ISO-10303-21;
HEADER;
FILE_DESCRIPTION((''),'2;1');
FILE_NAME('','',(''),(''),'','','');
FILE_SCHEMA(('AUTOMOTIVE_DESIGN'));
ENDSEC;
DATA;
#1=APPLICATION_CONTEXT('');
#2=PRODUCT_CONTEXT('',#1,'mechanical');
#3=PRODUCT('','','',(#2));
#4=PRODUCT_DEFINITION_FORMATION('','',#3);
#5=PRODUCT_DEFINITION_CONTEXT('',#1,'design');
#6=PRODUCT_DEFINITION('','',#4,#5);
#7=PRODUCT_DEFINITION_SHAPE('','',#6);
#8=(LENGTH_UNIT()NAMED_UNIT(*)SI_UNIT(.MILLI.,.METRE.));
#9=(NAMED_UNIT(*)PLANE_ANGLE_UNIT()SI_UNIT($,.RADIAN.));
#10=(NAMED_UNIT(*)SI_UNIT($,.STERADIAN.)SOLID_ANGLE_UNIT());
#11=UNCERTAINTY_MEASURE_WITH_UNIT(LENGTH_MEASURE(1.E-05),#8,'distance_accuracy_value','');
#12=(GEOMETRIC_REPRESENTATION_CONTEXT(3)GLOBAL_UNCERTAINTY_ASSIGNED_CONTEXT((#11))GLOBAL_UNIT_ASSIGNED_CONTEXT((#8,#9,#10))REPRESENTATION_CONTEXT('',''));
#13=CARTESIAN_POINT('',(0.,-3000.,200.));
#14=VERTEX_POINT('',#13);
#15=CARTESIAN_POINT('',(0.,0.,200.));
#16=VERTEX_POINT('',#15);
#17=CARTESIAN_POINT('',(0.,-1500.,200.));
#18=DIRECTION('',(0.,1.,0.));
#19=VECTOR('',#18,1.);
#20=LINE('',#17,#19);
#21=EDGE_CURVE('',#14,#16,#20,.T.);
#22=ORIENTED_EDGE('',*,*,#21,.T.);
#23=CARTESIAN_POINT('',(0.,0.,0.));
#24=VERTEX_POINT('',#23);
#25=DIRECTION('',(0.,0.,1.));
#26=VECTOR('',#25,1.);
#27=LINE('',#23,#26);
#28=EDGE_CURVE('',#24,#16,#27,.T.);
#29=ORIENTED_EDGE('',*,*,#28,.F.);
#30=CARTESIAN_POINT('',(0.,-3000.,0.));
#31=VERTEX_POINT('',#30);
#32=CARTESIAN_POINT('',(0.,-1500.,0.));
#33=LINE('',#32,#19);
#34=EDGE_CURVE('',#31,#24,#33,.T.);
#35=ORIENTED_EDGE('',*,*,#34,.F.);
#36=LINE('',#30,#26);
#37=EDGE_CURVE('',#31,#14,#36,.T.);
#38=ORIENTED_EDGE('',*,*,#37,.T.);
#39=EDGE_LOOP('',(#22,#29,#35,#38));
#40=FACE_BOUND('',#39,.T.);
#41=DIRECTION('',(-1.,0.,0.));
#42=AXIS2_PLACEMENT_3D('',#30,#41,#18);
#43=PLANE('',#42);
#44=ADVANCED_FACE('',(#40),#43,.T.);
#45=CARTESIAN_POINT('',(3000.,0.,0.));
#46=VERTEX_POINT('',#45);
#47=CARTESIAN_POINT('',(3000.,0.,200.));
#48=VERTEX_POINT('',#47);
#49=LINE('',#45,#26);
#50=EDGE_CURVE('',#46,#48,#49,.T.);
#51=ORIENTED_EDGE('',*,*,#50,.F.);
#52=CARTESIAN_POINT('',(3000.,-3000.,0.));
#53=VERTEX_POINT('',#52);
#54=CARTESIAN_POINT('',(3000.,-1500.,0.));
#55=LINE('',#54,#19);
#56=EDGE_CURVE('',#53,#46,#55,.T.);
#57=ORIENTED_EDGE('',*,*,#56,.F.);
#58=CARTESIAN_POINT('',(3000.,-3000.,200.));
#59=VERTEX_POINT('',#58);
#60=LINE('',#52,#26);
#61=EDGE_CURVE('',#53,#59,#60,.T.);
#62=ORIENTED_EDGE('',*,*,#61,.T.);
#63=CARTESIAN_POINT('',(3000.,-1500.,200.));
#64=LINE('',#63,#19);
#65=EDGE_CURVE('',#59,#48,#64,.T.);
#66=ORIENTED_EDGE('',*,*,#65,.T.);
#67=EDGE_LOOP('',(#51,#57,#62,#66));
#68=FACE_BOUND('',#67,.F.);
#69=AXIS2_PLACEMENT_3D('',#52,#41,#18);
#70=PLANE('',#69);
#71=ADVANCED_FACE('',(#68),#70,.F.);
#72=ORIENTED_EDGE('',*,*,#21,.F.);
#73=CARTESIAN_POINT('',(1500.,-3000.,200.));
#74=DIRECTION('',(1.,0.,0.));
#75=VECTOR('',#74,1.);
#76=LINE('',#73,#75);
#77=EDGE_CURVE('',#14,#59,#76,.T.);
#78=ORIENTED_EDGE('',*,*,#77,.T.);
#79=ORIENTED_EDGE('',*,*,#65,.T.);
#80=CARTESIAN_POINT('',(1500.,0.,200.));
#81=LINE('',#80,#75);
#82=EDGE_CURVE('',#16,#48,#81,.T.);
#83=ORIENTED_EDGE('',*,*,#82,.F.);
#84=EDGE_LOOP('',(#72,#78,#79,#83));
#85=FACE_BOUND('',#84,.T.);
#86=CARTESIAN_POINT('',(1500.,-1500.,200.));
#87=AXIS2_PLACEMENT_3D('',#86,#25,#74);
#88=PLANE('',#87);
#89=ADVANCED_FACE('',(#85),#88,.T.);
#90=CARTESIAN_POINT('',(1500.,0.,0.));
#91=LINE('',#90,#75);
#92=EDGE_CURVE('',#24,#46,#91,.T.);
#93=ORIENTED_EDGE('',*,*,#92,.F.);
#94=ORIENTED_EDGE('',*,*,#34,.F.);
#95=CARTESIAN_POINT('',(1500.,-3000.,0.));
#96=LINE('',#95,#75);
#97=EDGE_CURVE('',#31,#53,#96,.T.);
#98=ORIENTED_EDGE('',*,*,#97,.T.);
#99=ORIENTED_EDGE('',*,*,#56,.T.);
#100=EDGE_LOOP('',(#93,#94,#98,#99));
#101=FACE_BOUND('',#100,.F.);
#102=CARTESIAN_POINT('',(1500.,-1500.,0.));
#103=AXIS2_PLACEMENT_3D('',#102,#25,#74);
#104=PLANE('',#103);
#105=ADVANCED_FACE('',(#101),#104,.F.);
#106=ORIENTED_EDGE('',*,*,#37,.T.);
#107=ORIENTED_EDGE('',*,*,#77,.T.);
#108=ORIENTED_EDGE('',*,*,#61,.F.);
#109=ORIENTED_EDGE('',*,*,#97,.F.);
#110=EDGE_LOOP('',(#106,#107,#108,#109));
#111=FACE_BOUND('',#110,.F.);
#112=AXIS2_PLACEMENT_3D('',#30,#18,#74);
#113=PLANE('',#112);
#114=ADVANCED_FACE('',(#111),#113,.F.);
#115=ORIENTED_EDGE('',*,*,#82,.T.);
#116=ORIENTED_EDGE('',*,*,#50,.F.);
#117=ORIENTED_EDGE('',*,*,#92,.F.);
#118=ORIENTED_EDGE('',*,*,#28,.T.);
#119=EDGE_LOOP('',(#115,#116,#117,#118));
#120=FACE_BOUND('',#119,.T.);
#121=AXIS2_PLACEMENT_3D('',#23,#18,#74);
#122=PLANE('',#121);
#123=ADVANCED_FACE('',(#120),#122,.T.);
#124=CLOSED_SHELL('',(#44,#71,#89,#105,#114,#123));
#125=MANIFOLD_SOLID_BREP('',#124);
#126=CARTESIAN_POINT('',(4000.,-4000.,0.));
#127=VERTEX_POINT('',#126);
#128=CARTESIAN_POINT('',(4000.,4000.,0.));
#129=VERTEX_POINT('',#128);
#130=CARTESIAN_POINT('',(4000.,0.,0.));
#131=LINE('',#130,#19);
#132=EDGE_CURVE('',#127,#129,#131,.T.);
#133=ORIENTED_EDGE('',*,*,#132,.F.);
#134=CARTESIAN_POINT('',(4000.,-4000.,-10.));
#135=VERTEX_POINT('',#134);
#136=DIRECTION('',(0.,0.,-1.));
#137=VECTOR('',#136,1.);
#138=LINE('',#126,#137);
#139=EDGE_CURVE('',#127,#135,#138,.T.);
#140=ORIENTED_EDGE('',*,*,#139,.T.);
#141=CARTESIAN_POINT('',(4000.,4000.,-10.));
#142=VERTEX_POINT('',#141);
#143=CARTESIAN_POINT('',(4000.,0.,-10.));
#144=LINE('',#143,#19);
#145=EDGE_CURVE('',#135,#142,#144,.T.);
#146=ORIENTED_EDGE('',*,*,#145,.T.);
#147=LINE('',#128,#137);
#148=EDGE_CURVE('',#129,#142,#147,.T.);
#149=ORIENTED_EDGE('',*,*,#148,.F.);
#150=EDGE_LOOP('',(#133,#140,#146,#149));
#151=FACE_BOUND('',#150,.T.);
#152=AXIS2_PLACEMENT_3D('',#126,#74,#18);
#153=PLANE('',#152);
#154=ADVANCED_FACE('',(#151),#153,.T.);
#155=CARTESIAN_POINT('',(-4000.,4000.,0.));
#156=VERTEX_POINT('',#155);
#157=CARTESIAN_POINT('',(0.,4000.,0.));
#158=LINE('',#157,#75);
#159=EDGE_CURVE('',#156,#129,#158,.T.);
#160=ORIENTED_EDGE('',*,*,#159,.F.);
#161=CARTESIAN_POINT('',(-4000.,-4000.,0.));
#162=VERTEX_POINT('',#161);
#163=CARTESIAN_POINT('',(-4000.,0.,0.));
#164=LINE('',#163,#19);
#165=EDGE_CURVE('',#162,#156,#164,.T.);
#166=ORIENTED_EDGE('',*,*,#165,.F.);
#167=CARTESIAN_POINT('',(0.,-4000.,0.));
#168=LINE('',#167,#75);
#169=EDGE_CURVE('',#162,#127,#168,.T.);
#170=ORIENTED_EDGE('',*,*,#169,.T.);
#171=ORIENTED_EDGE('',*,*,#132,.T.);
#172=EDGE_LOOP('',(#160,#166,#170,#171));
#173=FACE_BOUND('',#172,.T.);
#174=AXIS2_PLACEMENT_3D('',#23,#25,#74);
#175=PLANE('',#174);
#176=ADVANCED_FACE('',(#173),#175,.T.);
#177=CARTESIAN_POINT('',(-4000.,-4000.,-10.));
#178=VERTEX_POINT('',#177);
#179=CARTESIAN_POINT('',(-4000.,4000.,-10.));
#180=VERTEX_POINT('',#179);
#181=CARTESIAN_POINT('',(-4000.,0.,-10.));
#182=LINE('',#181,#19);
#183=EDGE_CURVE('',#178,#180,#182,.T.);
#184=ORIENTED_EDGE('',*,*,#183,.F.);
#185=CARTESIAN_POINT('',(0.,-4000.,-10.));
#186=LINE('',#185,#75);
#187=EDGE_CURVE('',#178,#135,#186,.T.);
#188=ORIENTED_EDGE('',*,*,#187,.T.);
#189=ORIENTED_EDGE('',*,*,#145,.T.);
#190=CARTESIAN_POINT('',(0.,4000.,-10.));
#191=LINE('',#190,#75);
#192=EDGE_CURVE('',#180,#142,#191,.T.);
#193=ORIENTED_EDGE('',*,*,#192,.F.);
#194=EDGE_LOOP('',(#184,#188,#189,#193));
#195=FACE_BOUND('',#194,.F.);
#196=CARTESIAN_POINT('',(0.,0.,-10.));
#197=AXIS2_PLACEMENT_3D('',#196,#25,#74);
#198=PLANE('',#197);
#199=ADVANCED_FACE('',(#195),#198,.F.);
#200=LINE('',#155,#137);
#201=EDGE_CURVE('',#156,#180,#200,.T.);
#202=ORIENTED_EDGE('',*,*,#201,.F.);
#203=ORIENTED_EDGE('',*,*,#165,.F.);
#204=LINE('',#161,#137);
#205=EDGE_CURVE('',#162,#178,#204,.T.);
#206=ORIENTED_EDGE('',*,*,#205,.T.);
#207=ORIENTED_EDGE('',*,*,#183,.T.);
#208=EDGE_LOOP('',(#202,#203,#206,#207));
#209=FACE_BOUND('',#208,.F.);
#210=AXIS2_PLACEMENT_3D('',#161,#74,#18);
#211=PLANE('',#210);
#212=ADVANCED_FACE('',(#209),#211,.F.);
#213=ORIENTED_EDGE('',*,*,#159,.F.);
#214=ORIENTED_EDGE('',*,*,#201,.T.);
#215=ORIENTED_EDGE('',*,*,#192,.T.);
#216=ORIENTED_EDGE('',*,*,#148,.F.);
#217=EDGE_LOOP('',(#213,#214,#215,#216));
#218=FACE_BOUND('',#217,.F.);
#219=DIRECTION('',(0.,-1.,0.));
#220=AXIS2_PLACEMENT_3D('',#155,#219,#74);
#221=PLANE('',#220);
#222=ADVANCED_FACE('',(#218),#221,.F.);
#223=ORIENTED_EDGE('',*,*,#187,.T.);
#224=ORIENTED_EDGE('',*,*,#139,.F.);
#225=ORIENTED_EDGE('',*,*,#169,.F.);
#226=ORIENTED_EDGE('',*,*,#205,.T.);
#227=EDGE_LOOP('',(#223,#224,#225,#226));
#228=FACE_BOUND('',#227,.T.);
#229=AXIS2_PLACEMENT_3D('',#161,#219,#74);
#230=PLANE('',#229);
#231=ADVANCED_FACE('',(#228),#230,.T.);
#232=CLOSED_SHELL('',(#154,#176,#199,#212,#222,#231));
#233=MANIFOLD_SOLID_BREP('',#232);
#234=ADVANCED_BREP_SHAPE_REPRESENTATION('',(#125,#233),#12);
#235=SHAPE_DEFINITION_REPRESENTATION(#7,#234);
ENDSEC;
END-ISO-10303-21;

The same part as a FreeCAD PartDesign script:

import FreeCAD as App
import Part
import Sketcher

V = App.Vector
Q = App.Units.Quantity

doc = App.newDocument("Part")
body = doc.addObject("PartDesign::Body", "Body")

# Sketch on XY plane
sketch1 = body.newObject("Sketcher::SketchObject", "Sketch")
sketch1.AttachmentSupport = (doc.getObject("XY_Plane"), [""])
sketch1.MapMode = "FlatFace"
sketch1.addGeometry(Part.LineSegment(V(-4000, 4000, 0), V(-4000, -4000, 0)), False)
sketch1.addGeometry(Part.LineSegment(V(-4000, -4000, 0), V(4000, -4000, 0)), False)
sketch1.addGeometry(Part.LineSegment(V(4000, -4000, 0), V(4000, 4000, 0)), False)
sketch1.addGeometry(Part.LineSegment(V(4000, 4000, 0), V(-4000, 4000, 0)), False)
sketch1.addConstraint(Sketcher.Constraint("Coincident", 0, 2, 1, 1))
sketch1.addConstraint(Sketcher.Constraint("Coincident", 1, 2, 2, 1))
sketch1.addConstraint(Sketcher.Constraint("Coincident", 2, 2, 3, 1))
sketch1.addConstraint(Sketcher.Constraint("Coincident", 3, 2, 0, 1))
sketch1.addConstraint(Sketcher.Constraint("Vertical", 0))
sketch1.addConstraint(Sketcher.Constraint("Horizontal", 1))
sketch1.addConstraint(Sketcher.Constraint("Vertical", 2))
sketch1.addConstraint(Sketcher.Constraint("Horizontal", 3))
sketch1.addConstraint(Sketcher.Constraint("Symmetric", 0, 2, 2, 2, -1, 1))
sketch1.addConstraint(Sketcher.Constraint("Equal", 3, 0))
sketch1.addConstraint(Sketcher.Constraint("DistanceX", 1, 1, 1, 2, Q("8000 mm")))
pad1 = body.newObject("PartDesign::Pad", "Pad")
pad1.Profile = sketch1
pad1.Length = 10
pad1.Reversed = True
body2 = doc.addObject("PartDesign::Body", "Body001")

# Sketch on XY plane
sketch2 = body2.newObject("Sketcher::SketchObject", "Sketch001")
sketch2.AttachmentSupport = (doc.getObject("XY_Plane001"), [""])
sketch2.MapMode = "FlatFace"
sketch2.addGeometry(Part.LineSegment(V(0, 0, 0), V(0, -3000, 0)), False)
sketch2.addGeometry(Part.LineSegment(V(0, -3000, 0), V(3000, -3000, 0)), False)
sketch2.addGeometry(Part.LineSegment(V(3000, -3000, 0), V(3000, 0, 0)), False)
sketch2.addGeometry(Part.LineSegment(V(3000, 0, 0), V(0, 0, 0)), False)
sketch2.addConstraint(Sketcher.Constraint("Coincident", 0, 2, 1, 1))
sketch2.addConstraint(Sketcher.Constraint("Coincident", 1, 2, 2, 1))
sketch2.addConstraint(Sketcher.Constraint("Coincident", 2, 2, 3, 1))
sketch2.addConstraint(Sketcher.Constraint("Coincident", 3, 2, 0, 1))
sketch2.addConstraint(Sketcher.Constraint("Vertical", 0))
sketch2.addConstraint(Sketcher.Constraint("Horizontal", 1))
sketch2.addConstraint(Sketcher.Constraint("Vertical", 2))
sketch2.addConstraint(Sketcher.Constraint("Horizontal", 3))
sketch2.addConstraint(Sketcher.Constraint("Coincident", 3, 2, -1, 1))
sketch2.addConstraint(Sketcher.Constraint("Equal", 3, 0))
sketch2.addConstraint(Sketcher.Constraint("DistanceX", 1, 1, 1, 2, Q("3000 mm")))
pad2 = body2.newObject("PartDesign::Pad", "Pad001")
pad2.Profile = sketch2
pad2.Length = 200

doc.recompute()
